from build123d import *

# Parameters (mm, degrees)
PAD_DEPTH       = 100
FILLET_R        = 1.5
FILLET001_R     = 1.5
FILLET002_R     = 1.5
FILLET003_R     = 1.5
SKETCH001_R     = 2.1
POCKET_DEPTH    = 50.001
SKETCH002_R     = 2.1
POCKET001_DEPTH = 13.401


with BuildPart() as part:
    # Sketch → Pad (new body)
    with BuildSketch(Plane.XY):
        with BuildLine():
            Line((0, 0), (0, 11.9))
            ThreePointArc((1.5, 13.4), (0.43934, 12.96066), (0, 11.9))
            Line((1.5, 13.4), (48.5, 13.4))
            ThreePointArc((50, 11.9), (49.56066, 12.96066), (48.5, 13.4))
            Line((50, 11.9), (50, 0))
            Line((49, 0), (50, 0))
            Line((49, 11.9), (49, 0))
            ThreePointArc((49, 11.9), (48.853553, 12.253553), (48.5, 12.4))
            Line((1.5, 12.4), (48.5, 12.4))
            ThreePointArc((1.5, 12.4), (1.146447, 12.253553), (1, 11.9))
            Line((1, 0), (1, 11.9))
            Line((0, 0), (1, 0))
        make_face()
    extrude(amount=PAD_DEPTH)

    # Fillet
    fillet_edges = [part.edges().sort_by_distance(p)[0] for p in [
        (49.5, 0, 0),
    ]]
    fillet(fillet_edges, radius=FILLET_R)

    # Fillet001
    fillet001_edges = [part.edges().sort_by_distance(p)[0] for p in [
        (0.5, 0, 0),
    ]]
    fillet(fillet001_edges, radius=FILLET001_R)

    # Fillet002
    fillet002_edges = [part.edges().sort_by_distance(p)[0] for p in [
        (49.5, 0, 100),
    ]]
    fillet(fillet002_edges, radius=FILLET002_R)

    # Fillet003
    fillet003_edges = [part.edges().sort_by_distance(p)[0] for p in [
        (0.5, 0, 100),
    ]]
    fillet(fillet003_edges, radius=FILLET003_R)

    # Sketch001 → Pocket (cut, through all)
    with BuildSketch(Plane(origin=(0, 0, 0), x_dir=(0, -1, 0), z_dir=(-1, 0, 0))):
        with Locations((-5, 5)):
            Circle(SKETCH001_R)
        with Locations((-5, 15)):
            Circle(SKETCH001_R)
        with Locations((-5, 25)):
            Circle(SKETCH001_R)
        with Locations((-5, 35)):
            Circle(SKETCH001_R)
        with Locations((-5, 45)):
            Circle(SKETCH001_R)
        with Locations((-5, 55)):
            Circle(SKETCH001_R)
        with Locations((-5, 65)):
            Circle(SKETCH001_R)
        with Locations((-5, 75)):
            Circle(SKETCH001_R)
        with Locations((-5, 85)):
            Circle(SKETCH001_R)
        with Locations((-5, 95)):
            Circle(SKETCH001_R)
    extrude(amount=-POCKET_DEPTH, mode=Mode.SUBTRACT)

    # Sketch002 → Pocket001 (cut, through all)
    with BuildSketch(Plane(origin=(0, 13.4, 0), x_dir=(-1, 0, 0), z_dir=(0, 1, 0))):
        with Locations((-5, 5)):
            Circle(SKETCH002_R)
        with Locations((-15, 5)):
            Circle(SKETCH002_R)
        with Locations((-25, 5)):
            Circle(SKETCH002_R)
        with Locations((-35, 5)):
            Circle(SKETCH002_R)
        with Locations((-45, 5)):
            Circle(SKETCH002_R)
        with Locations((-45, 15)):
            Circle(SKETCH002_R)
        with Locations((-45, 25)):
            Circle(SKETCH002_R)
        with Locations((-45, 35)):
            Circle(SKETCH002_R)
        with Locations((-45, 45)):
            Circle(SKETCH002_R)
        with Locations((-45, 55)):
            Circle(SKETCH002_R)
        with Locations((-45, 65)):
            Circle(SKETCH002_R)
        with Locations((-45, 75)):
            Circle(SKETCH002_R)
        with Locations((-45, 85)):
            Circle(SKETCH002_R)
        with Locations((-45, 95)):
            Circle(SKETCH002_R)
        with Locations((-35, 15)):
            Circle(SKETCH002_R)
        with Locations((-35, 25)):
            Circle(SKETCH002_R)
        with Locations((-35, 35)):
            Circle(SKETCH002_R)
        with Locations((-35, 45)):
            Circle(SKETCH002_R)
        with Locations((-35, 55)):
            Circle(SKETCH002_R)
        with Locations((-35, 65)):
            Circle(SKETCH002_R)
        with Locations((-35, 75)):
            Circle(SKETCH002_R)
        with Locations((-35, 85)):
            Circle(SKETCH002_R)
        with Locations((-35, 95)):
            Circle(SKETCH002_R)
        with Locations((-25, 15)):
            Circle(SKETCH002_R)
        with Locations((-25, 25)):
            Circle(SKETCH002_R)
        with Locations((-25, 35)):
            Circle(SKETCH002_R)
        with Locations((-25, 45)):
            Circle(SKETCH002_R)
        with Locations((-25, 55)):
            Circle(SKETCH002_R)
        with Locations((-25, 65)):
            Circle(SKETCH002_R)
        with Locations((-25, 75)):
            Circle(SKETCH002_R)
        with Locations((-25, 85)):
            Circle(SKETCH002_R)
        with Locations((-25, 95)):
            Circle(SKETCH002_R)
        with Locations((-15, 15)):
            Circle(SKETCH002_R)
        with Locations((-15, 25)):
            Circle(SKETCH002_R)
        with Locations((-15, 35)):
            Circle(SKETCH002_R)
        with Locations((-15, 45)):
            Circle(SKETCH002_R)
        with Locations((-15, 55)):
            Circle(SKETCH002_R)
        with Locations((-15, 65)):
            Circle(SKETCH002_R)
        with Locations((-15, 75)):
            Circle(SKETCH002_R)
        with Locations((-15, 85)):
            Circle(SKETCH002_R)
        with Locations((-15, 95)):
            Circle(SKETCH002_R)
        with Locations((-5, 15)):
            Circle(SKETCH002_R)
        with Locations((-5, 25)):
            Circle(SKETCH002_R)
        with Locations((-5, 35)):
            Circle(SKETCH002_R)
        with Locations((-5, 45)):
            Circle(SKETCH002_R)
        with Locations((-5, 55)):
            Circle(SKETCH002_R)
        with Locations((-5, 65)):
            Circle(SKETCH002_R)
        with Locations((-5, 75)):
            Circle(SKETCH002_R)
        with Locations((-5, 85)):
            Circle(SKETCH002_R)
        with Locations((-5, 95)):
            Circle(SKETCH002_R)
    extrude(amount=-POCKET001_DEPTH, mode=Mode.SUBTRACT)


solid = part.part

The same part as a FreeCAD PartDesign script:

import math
import FreeCAD as App
import Part
import Sketcher
from FreeCAD import Vector
Q = App.Units.Quantity


def edges_at(feature, points):
    """Names of the edges that pass closest to the given points."""
    edges = feature.Shape.Edges
    near = lambda p: min(range(len(edges)), key=lambda i: edges[i].distToShape(Part.Vertex(*p))[0])
    return sorted({f"Edge{near(p) + 1}" for p in points})

doc = App.newDocument("Part")
params = doc.addObject("Spreadsheet::Sheet", "Params")
for row, (alias, value) in enumerate([
    ("sketch1_radius", "0.500001 mm"),
    ("sketch1_radius2", "1.500001 mm"),
    ("sketch1_width", "47 mm"),
    ("sketch1_height", "11.9 mm"),
    ("pad1_length", "100 mm"),
    ("fillet_radius", "1.5 mm"),
    ("fillet2_radius", "1.5 mm"),
    ("fillet3_radius", "1.5 mm"),
    ("fillet4_radius", "1.5 mm"),
    ("sketch2_diameter", "4.2 mm"),
    ("sketch3_diameter", "4.2 mm"),
], start=1):
    params.set(f"A{row}", alias)
    params.set(f"B{row}", "=" + value)
    params.setAlias(f"B{row}", alias)

body = doc.addObject("PartDesign::Body", "Body")

# Sketch on XY plane
sketch1 = body.newObject("Sketcher::SketchObject", "Sketch")
sketch1.AttachmentSupport = (doc.getObject("XY_Plane"), [""])
sketch1.MapMode = "FlatFace"
sketch1.addGeometry(Part.LineSegment(Vector(0, 11.9, 0), Vector(0, 0, 0)), False)
sketch1.addGeometry(Part.LineSegment(Vector(0, 0, 0), Vector(1, 0, 0)), False)
sketch1.addGeometry(Part.LineSegment(Vector(1, 0, 0), Vector(1, 11.9, 0)), False)
sketch1.addGeometry(Part.ArcOfCircle(Part.Circle(Vector(1.5, 11.9, 0), Vector(0, 0, 1), 0.5), math.radians(90), math.radians(180)), False)
sketch1.addGeometry(Part.LineSegment(Vector(1.5, 12.4, 0), Vector(48.5, 12.4, 0)), False)
sketch1.addGeometry(Part.ArcOfCircle(Part.Circle(Vector(48.5, 11.9, 0), Vector(0, 0, 1), 0.5), math.radians(0), math.radians(90)), False)
sketch1.addGeometry(Part.LineSegment(Vector(49, 11.9, 0), Vector(49, 0, 0)), False)
sketch1.addGeometry(Part.LineSegment(Vector(49, 0, 0), Vector(50, 0, 0)), False)
sketch1.addGeometry(Part.LineSegment(Vector(50, 0, 0), Vector(50, 11.9, 0)), False)
sketch1.addGeometry(Part.ArcOfCircle(Part.Circle(Vector(48.5, 11.9, 0), Vector(0, 0, 1), 1.5), math.radians(0), math.radians(90)), False)
sketch1.addGeometry(Part.LineSegment(Vector(48.5, 13.4, 0), Vector(1.5, 13.4, 0)), False)
sketch1.addGeometry(Part.ArcOfCircle(Part.Circle(Vector(1.5, 11.9, 0), Vector(0, 0, 1), 1.5), math.radians(90), math.radians(180)), False)
sketch1.addConstraint(Sketcher.Constraint("Coincident", 0, 2, 1, 1))
sketch1.addConstraint(Sketcher.Constraint("Coincident", 1, 2, 2, 1))
sketch1.addConstraint(Sketcher.Constraint("Coincident", 2, 2, 3, 2))
sketch1.addConstraint(Sketcher.Constraint("Coincident", 3, 1, 4, 1))
sketch1.addConstraint(Sketcher.Constraint("Coincident", 4, 2, 5, 2))
sketch1.addConstraint(Sketcher.Constraint("Coincident", 5, 1, 6, 1))
sketch1.addConstraint(Sketcher.Constraint("Coincident", 6, 2, 7, 1))
sketch1.addConstraint(Sketcher.Constraint("Coincident", 7, 2, 8, 1))
sketch1.addConstraint(Sketcher.Constraint("Tangent", 8, 2, 9, 1))
sketch1.addConstraint(Sketcher.Constraint("Tangent", 9, 2, 10, 1))
sketch1.addConstraint(Sketcher.Constraint("Tangent", 10, 2, 11, 1))
sketch1.addConstraint(Sketcher.Constraint("Tangent", 11, 2, 0, 1))
sketch1.addConstraint(Sketcher.Constraint("Vertical", 0))
sketch1.addConstraint(Sketcher.Constraint("Horizontal", 1))
sketch1.addConstraint(Sketcher.Constraint("Vertical", 2))
sketch1.addConstraint(Sketcher.Constraint("Horizontal", 4))
sketch1.addConstraint(Sketcher.Constraint("Vertical", 6))
sketch1.addConstraint(Sketcher.Constraint("Horizontal", 7))
sketch1.addConstraint(Sketcher.Constraint("Vertical", 8))
sketch1.addConstraint(Sketcher.Constraint("Horizontal", 10))
sketch1.addConstraint(Sketcher.Constraint("Coincident", 0, 2, -1, 1))
sketch1.addConstraint(Sketcher.Constraint("Coincident", 9, 3, 5, 3))
sketch1.addConstraint(Sketcher.Constraint("Coincident", 11, 3, 3, 3))
sketch1.addConstraint(Sketcher.Constraint("Equal", 3, 5))
sketch1.addConstraint(Sketcher.Constraint("PointOnObject", 6, 2, -1))
sketch1.addConstraint(Sketcher.Constraint("Horizontal", 11, 3, 2, 2))
sketch1.addConstraint(Sketcher.Constraint("Horizontal", 2, 2, 5, 1))
sketch1.addConstraint(Sketcher.Constraint("Vertical", 11, 3, 3, 1))
sketch1.addConstraint(Sketcher.Constraint("Vertical", 9, 3, 4, 2))
sketch1.addConstraint(Sketcher.Constraint("Radius", 3, Q("0.500001 mm")))
sketch1.addConstraint(Sketcher.Constraint("Radius", 9, Q("1.500001 mm")))
sketch1.addConstraint(Sketcher.Constraint("DistanceX", 4, 1, 4, 2, Q("47 mm")))
sketch1.addConstraint(Sketcher.Constraint("DistanceY", 0, 2, 0, 1, Q("11.9 mm")))
sketch1.setExpression("Constraints[29]", "Params.sketch1_radius")
sketch1.setExpression("Constraints[30]", "Params.sketch1_radius2")
sketch1.setExpression("Constraints[31]", "Params.sketch1_width")
sketch1.setExpression("Constraints[32]", "Params.sketch1_height")
pad1 = body.newObject("PartDesign::Pad", "Pad")
pad1.Profile = sketch1
pad1.setExpression("Length", "Params.pad1_length")
doc.recompute()

fillet = body.newObject("PartDesign::Fillet", "Fillet")
fillet.Base = (pad1, edges_at(pad1, [(49.5, 0, 0)]))
fillet.setExpression("Radius", "Params.fillet_radius")
doc.recompute()

fillet2 = body.newObject("PartDesign::Fillet", "Fillet001")
fillet2.Base = (fillet, edges_at(fillet, [(0.5, 0, 0)]))
fillet2.setExpression("Radius", "Params.fillet2_radius")
doc.recompute()

fillet3 = body.newObject("PartDesign::Fillet", "Fillet002")
fillet3.Base = (fillet2, edges_at(fillet2, [(49.5, 0, 100)]))
fillet3.setExpression("Radius", "Params.fillet3_radius")
doc.recompute()

fillet4 = body.newObject("PartDesign::Fillet", "Fillet003")
fillet4.Base = (fillet3, edges_at(fillet3, [(0.5, 0, 100)]))
fillet4.setExpression("Radius", "Params.fillet4_radius")

# Sketch on YZ plane
sketch2 = body.newObject("Sketcher::SketchObject", "Sketch001")
sketch2.AttachmentSupport = (doc.getObject("YZ_Plane"), [""])
sketch2.MapMode = "FlatFace"
sketch2.addGeometry(Part.Circle(Vector(5, 5, 0), Vector(0, 0, 1), 2.1), False)
sketch2.addGeometry(Part.Circle(Vector(5, 15, 0), Vector(0, 0, 1), 2.1), False)
sketch2.addGeometry(Part.Circle(Vector(5, 25, 0), Vector(0, 0, 1), 2.1), False)
sketch2.addGeometry(Part.Circle(Vector(5, 35, 0), Vector(0, 0, 1), 2.1), False)
sketch2.addGeometry(Part.Circle(Vector(5, 45, 0), Vector(0, 0, 1), 2.1), False)
sketch2.addGeometry(Part.Circle(Vector(5, 55, 0), Vector(0, 0, 1), 2.1), False)
sketch2.addGeometry(Part.Circle(Vector(5, 65, 0), Vector(0, 0, 1), 2.1), False)
sketch2.addGeometry(Part.Circle(Vector(5, 75, 0), Vector(0, 0, 1), 2.1), False)
sketch2.addGeometry(Part.Circle(Vector(5, 85, 0), Vector(0, 0, 1), 2.1), False)
sketch2.addGeometry(Part.Circle(Vector(5, 95, 0), Vector(0, 0, 1), 2.1), False)
sketch2.addConstraint(Sketcher.Constraint("Equal", 0, 1))
sketch2.addConstraint(Sketcher.Constraint("Equal", 1, 2))
sketch2.addConstraint(Sketcher.Constraint("Equal", 2, 3))
sketch2.addConstraint(Sketcher.Constraint("Equal", 3, 4))
sketch2.addConstraint(Sketcher.Constraint("Equal", 4, 5))
sketch2.addConstraint(Sketcher.Constraint("Equal", 5, 6))
sketch2.addConstraint(Sketcher.Constraint("Equal", 6, 7))
sketch2.addConstraint(Sketcher.Constraint("Equal", 7, 8))
sketch2.addConstraint(Sketcher.Constraint("Equal", 8, 9))
sketch2.addConstraint(Sketcher.Constraint("Vertical", 0, 3, 1, 3))
sketch2.addConstraint(Sketcher.Constraint("Vertical", 1, 3, 2, 3))
sketch2.addConstraint(Sketcher.Constraint("Vertical", 2, 3, 3, 3))
sketch2.addConstraint(Sketcher.Constraint("Vertical", 3, 3, 4, 3))
sketch2.addConstraint(Sketcher.Constraint("Vertical", 4, 3, 5, 3))
sketch2.addConstraint(Sketcher.Constraint("Vertical", 5, 3, 6, 3))
sketch2.addConstraint(Sketcher.Constraint("Vertical", 6, 3, 7, 3))
sketch2.addConstraint(Sketcher.Constraint("Vertical", 7, 3, 8, 3))
sketch2.addConstraint(Sketcher.Constraint("Vertical", 8, 3, 9, 3))
sketch2.addConstraint(Sketcher.Constraint("Diameter", 0, Q("4.2 mm")))
sketch2.addConstraint(Sketcher.Constraint("DistanceX", -1, 1, 0, 3, Q("5 mm")))
sketch2.addConstraint(Sketcher.Constraint("DistanceY", -1, 1, 0, 3, Q("5 mm")))
sketch2.addConstraint(Sketcher.Constraint("DistanceY", -1, 1, 1, 3, Q("15 mm")))
sketch2.addConstraint(Sketcher.Constraint("DistanceY", -1, 1, 2, 3, Q("25 mm")))
sketch2.addConstraint(Sketcher.Constraint("DistanceY", -1, 1, 3, 3, Q("35 mm")))
sketch2.addConstraint(Sketcher.Constraint("DistanceY", -1, 1, 4, 3, Q("45 mm")))
sketch2.addConstraint(Sketcher.Constraint("DistanceY", -1, 1, 5, 3, Q("55 mm")))
sketch2.addConstraint(Sketcher.Constraint("DistanceY", -1, 1, 6, 3, Q("65 mm")))
sketch2.addConstraint(Sketcher.Constraint("DistanceY", -1, 1, 7, 3, Q("75 mm")))
sketch2.addConstraint(Sketcher.Constraint("DistanceY", -1, 1, 8, 3, Q("85 mm")))
sketch2.addConstraint(Sketcher.Constraint("DistanceY", -1, 1, 9, 3, Q("95 mm")))
sketch2.setExpression("Constraints[18]", "Params.sketch2_diameter")
pocket1 = body.newObject("PartDesign::Pocket", "Pocket")
pocket1.Profile = sketch2
pocket1.Type = "ThroughAll"
pocket1.Reversed = True

# Sketch on XZ plane
sketch3 = body.newObject("Sketcher::SketchObject", "Sketch002")
sketch3.AttachmentSupport = (doc.getObject("XZ_Plane"), [""])
sketch3.MapMode = "FlatFace"
sketch3.AttachmentOffset = App.Placement(Vector(0, 0, -13.4), App.Rotation())
sketch3.addGeometry(Part.Circle(Vector(5, 5, 0), Vector(0, 0, 1), 2.1), False)
sketch3.addGeometry(Part.Circle(Vector(15, 5, 0), Vector(0, 0, 1), 2.1), False)
sketch3.addGeometry(Part.Circle(Vector(25, 5, 0), Vector(0, 0, 1), 2.1), False)
sketch3.addGeometry(Part.Circle(Vector(35, 5, 0), Vector(0, 0, 1), 2.1), False)
sketch3.addGeometry(Part.Circle(Vector(45, 5, 0), Vector(0, 0, 1), 2.1), False)
sketch3.addGeometry(Part.Circle(Vector(45, 15, 0), Vector(0, 0, 1), 2.1), False)
sketch3.addGeometry(Part.Circle(Vector(45, 25, 0), Vector(0, 0, 1), 2.1), False)
sketch3.addGeometry(Part.Circle(Vector(45, 35, 0), Vector(0, 0, 1), 2.1), False)
sketch3.addGeometry(Part.Circle(Vector(45, 45, 0), Vector(0, 0, 1), 2.1), False)
sketch3.addGeometry(Part.Circle(Vector(45, 55, 0), Vector(0, 0, 1), 2.1), False)
sketch3.addGeometry(Part.Circle(Vector(45, 65, 0), Vector(0, 0, 1), 2.1), False)
sketch3.addGeometry(Part.Circle(Vector(45, 75, 0), Vector(0, 0, 1), 2.1), False)
sketch3.addGeometry(Part.Circle(Vector(45, 85, 0), Vector(0, 0, 1), 2.1), False)
sketch3.addGeometry(Part.Circle(Vector(45, 95, 0), Vector(0, 0, 1), 2.1), False)
sketch3.addGeometry(Part.Circle(Vector(35, 15, 0), Vector(0, 0, 1), 2.1), False)
sketch3.addGeometry(Part.Circle(Vector(35, 25, 0), Vector(0, 0, 1), 2.1), False)
sketch3.addGeometry(Part.Circle(Vector(35, 35, 0), Vector(0, 0, 1), 2.1), False)
sketch3.addGeometry(Part.Circle(Vector(35, 45, 0), Vector(0, 0, 1), 2.1), False)
sketch3.addGeometry(Part.Circle(Vector(35, 55, 0), Vector(0, 0, 1), 2.1), False)
sketch3.addGeometry(Part.Circle(Vector(35, 65, 0), Vector(0, 0, 1), 2.1), False)
sketch3.addGeometry(Part.Circle(Vector(35, 75, 0), Vector(0, 0, 1), 2.1), False)
sketch3.addGeometry(Part.Circle(Vector(35, 85, 0), Vector(0, 0, 1), 2.1), False)
sketch3.addGeometry(Part.Circle(Vector(35, 95, 0), Vector(0, 0, 1), 2.1), False)
sketch3.addGeometry(Part.Circle(Vector(25, 15, 0), Vector(0, 0, 1), 2.1), False)
sketch3.addGeometry(Part.Circle(Vector(25, 25, 0), Vector(0, 0, 1), 2.1), False)
sketch3.addGeometry(Part.Circle(Vector(25, 35, 0), Vector(0, 0, 1), 2.1), False)
sketch3.addGeometry(Part.Circle(Vector(25, 45, 0), Vector(0, 0, 1), 2.1), False)
sketch3.addGeometry(Part.Circle(Vector(25, 55, 0), Vector(0, 0, 1), 2.1), False)
sketch3.addGeometry(Part.Circle(Vector(25, 65, 0), Vector(0, 0, 1), 2.1), False)
sketch3.addGeometry(Part.Circle(Vector(25, 75, 0), Vector(0, 0, 1), 2.1), False)
sketch3.addGeometry(Part.Circle(Vector(25, 85, 0), Vector(0, 0, 1), 2.1), False)
sketch3.addGeometry(Part.Circle(Vector(25, 95, 0), Vector(0, 0, 1), 2.1), False)
sketch3.addGeometry(Part.Circle(Vector(15, 15, 0), Vector(0, 0, 1), 2.1), False)
sketch3.addGeometry(Part.Circle(Vector(15, 25, 0), Vector(0, 0, 1), 2.1), False)
sketch3.addGeometry(Part.Circle(Vector(15, 35, 0), Vector(0, 0, 1), 2.1), False)
sketch3.addGeometry(Part.Circle(Vector(15, 45, 0), Vector(0, 0, 1), 2.1), False)
sketch3.addGeometry(Part.Circle(Vector(15, 55, 0), Vector(0, 0, 1), 2.1), False)
sketch3.addGeometry(Part.Circle(Vector(15, 65, 0), Vector(0, 0, 1), 2.1), False)
sketch3.addGeometry(Part.Circle(Vector(15, 75, 0), Vector(0, 0, 1), 2.1), False)
sketch3.addGeometry(Part.Circle(Vector(15, 85, 0), Vector(0, 0, 1), 2.1), False)
sketch3.addGeometry(Part.Circle(Vector(15, 95, 0), Vector(0, 0, 1), 2.1), False)
sketch3.addGeometry(Part.Circle(Vector(5, 15, 0), Vector(0, 0, 1), 2.1), False)
sketch3.addGeometry(Part.Circle(Vector(5, 25, 0), Vector(0, 0, 1), 2.1), False)
sketch3.addGeometry(Part.Circle(Vector(5, 35, 0), Vector(0, 0, 1), 2.1), False)
sketch3.addGeometry(Part.Circle(Vector(5, 45, 0), Vector(0, 0, 1), 2.1), False)
sketch3.addGeometry(Part.Circle(Vector(5, 55, 0), Vector(0, 0, 1), 2.1), False)
sketch3.addGeometry(Part.Circle(Vector(5, 65, 0), Vector(0, 0, 1), 2.1), False)
sketch3.addGeometry(Part.Circle(Vector(5, 75, 0), Vector(0, 0, 1), 2.1), False)
sketch3.addGeometry(Part.Circle(Vector(5, 85, 0), Vector(0, 0, 1), 2.1), False)
sketch3.addGeometry(Part.Circle(Vector(5, 95, 0), Vector(0, 0, 1), 2.1), False)
sketch3.addConstraint(Sketcher.Constraint("Equal", 0, 1))
sketch3.addConstraint(Sketcher.Constraint("Equal", 1, 2))
sketch3.addConstraint(Sketcher.Constraint("Equal", 2, 3))
sketch3.addConstraint(Sketcher.Constraint("Equal", 3, 4))
sketch3.addConstraint(Sketcher.Constraint("Equal", 4, 5))
sketch3.addConstraint(Sketcher.Constraint("Equal", 5, 6))
sketch3.addConstraint(Sketcher.Constraint("Equal", 6, 7))
sketch3.addConstraint(Sketcher.Constraint("Equal", 7, 8))
sketch3.addConstraint(Sketcher.Constraint("Equal", 8, 9))
sketch3.addConstraint(Sketcher.Constraint("Equal", 9, 10))
sketch3.addConstraint(Sketcher.Constraint("Equal", 10, 11))
sketch3.addConstraint(Sketcher.Constraint("Equal", 11, 12))
sketch3.addConstraint(Sketcher.Constraint("Equal", 12, 13))
sketch3.addConstraint(Sketcher.Constraint("Equal", 13, 14))
sketch3.addConstraint(Sketcher.Constraint("Equal", 14, 15))
sketch3.addConstraint(Sketcher.Constraint("Equal", 15, 16))
sketch3.addConstraint(Sketcher.Constraint("Equal", 16, 17))
sketch3.addConstraint(Sketcher.Constraint("Equal", 17, 18))
sketch3.addConstraint(Sketcher.Constraint("Equal", 18, 19))
sketch3.addConstraint(Sketcher.Constraint("Equal", 19, 20))
sketch3.addConstraint(Sketcher.Constraint("Equal", 20, 21))
sketch3.addConstraint(Sketcher.Constraint("Equal", 21, 22))
sketch3.addConstraint(Sketcher.Constraint("Equal", 22, 23))
sketch3.addConstraint(Sketcher.Constraint("Equal", 23, 24))
sketch3.addConstraint(Sketcher.Constraint("Equal", 24, 25))
sketch3.addConstraint(Sketcher.Constraint("Equal", 25, 26))
sketch3.addConstraint(Sketcher.Constraint("Equal", 26, 27))
sketch3.addConstraint(Sketcher.Constraint("Equal", 27, 28))
sketch3.addConstraint(Sketcher.Constraint("Equal", 28, 29))
sketch3.addConstraint(Sketcher.Constraint("Equal", 29, 30))
sketch3.addConstraint(Sketcher.Constraint("Equal", 30, 31))
sketch3.addConstraint(Sketcher.Constraint("Equal", 31, 32))
sketch3.addConstraint(Sketcher.Constraint("Equal", 32, 33))
sketch3.addConstraint(Sketcher.Constraint("Equal", 33, 34))
sketch3.addConstraint(Sketcher.Constraint("Equal", 34, 35))
sketch3.addConstraint(Sketcher.Constraint("Equal", 35, 36))
sketch3.addConstraint(Sketcher.Constraint("Equal", 36, 37))
sketch3.addConstraint(Sketcher.Constraint("Equal", 37, 38))
sketch3.addConstraint(Sketcher.Constraint("Equal", 38, 39))
sketch3.addConstraint(Sketcher.Constraint("Equal", 39, 40))
sketch3.addConstraint(Sketcher.Constraint("Equal", 40, 41))
sketch3.addConstraint(Sketcher.Constraint("Equal", 41, 42))
sketch3.addConstraint(Sketcher.Constraint("Equal", 42, 43))
sketch3.addConstraint(Sketcher.Constraint("Equal", 43, 44))
sketch3.addConstraint(Sketcher.Constraint("Equal", 44, 45))
sketch3.addConstraint(Sketcher.Constraint("Equal", 45, 46))
sketch3.addConstraint(Sketcher.Constraint("Equal", 46, 47))
sketch3.addConstraint(Sketcher.Constraint("Equal", 47, 48))
sketch3.addConstraint(Sketcher.Constraint("Equal", 48, 49))
sketch3.addConstraint(Sketcher.Constraint("Horizontal", 0, 3, 1, 3))
sketch3.addConstraint(Sketcher.Constraint("Horizontal", 1, 3, 2, 3))
sketch3.addConstraint(Sketcher.Constraint("Horizontal", 2, 3, 3, 3))
sketch3.addConstraint(Sketcher.Constraint("Horizontal", 3, 3, 4, 3))
sketch3.addConstraint(Sketcher.Constraint("Horizontal", 5, 3, 14, 3))
sketch3.addConstraint(Sketcher.Constraint("Horizontal", 6, 3, 15, 3))
sketch3.addConstraint(Sketcher.Constraint("Horizontal", 7, 3, 16, 3))
sketch3.addConstraint(Sketcher.Constraint("Horizontal", 8, 3, 17, 3))
sketch3.addConstraint(Sketcher.Constraint("Horizontal", 9, 3, 18, 3))
sketch3.addConstraint(Sketcher.Constraint("Horizontal", 10, 3, 19, 3))
sketch3.addConstraint(Sketcher.Constraint("Horizontal", 11, 3, 20, 3))
sketch3.addConstraint(Sketcher.Constraint("Horizontal", 12, 3, 21, 3))
sketch3.addConstraint(Sketcher.Constraint("Horizontal", 13, 3, 22, 3))
sketch3.addConstraint(Sketcher.Constraint("Horizontal", 14, 3, 23, 3))
sketch3.addConstraint(Sketcher.Constraint("Horizontal", 15, 3, 24, 3))
sketch3.addConstraint(Sketcher.Constraint("Horizontal", 16, 3, 25, 3))
sketch3.addConstraint(Sketcher.Constraint("Horizontal", 17, 3, 26, 3))
sketch3.addConstraint(Sketcher.Constraint("Horizontal", 18, 3, 27, 3))
sketch3.addConstraint(Sketcher.Constraint("Horizontal", 19, 3, 28, 3))
sketch3.addConstraint(Sketcher.Constraint("Horizontal", 20, 3, 29, 3))
sketch3.addConstraint(Sketcher.Constraint("Horizontal", 21, 3, 30, 3))
sketch3.addConstraint(Sketcher.Constraint("Horizontal", 22, 3, 31, 3))
sketch3.addConstraint(Sketcher.Constraint("Horizontal", 23, 3, 32, 3))
sketch3.addConstraint(Sketcher.Constraint("Horizontal", 24, 3, 33, 3))
sketch3.addConstraint(Sketcher.Constraint("Horizontal", 25, 3, 34, 3))
sketch3.addConstraint(Sketcher.Constraint("Horizontal", 26, 3, 35, 3))
sketch3.addConstraint(Sketcher.Constraint("Horizontal", 27, 3, 36, 3))
sketch3.addConstraint(Sketcher.Constraint("Horizontal", 28, 3, 37, 3))
sketch3.addConstraint(Sketcher.Constraint("Horizontal", 29, 3, 38, 3))
sketch3.addConstraint(Sketcher.Constraint("Horizontal", 30, 3, 39, 3))
sketch3.addConstraint(Sketcher.Constraint("Horizontal", 31, 3, 40, 3))
sketch3.addConstraint(Sketcher.Constraint("Horizontal", 32, 3, 41, 3))
sketch3.addConstraint(Sketcher.Constraint("Horizontal", 33, 3, 42, 3))
sketch3.addConstraint(Sketcher.Constraint("Horizontal", 34, 3, 43, 3))
sketch3.addConstraint(Sketcher.Constraint("Horizontal", 35, 3, 44, 3))
sketch3.addConstraint(Sketcher.Constraint("Horizontal", 36, 3, 45, 3))
sketch3.addConstraint(Sketcher.Constraint("Horizontal", 37, 3, 46, 3))
sketch3.addConstraint(Sketcher.Constraint("Horizontal", 38, 3, 47, 3))
sketch3.addConstraint(Sketcher.Constraint("Horizontal", 39, 3, 48, 3))
sketch3.addConstraint(Sketcher.Constraint("Horizontal", 40, 3, 49, 3))
sketch3.addConstraint(Sketcher.Constraint("Vertical", 4, 3, 5, 3))
sketch3.addConstraint(Sketcher.Constraint("Vertical", 5, 3, 6, 3))
sketch3.addConstraint(Sketcher.Constraint("Vertical", 6, 3, 7, 3))
sketch3.addConstraint(Sketcher.Constraint("Vertical", 7, 3, 8, 3))
sketch3.addConstraint(Sketcher.Constraint("Vertical", 8, 3, 9, 3))
sketch3.addConstraint(Sketcher.Constraint("Vertical", 9, 3, 10, 3))
sketch3.addConstraint(Sketcher.Constraint("Vertical", 10, 3, 11, 3))
sketch3.addConstraint(Sketcher.Constraint("Vertical", 11, 3, 12, 3))
sketch3.addConstraint(Sketcher.Constraint("Vertical", 12, 3, 13, 3))
sketch3.addConstraint(Sketcher.Constraint("Vertical", 3, 3, 14, 3))
sketch3.addConstraint(Sketcher.Constraint("Vertical", 14, 3, 15, 3))
sketch3.addConstraint(Sketcher.Constraint("Vertical", 15, 3, 16, 3))
sketch3.addConstraint(Sketcher.Constraint("Vertical", 16, 3, 17, 3))
sketch3.addConstraint(Sketcher.Constraint("Vertical", 17, 3, 18, 3))
sketch3.addConstraint(Sketcher.Constraint("Vertical", 18, 3, 19, 3))
sketch3.addConstraint(Sketcher.Constraint("Vertical", 19, 3, 20, 3))
sketch3.addConstraint(Sketcher.Constraint("Vertical", 20, 3, 21, 3))
sketch3.addConstraint(Sketcher.Constraint("Vertical", 21, 3, 22, 3))
sketch3.addConstraint(Sketcher.Constraint("Vertical", 2, 3, 23, 3))
sketch3.addConstraint(Sketcher.Constraint("Vertical", 23, 3, 24, 3))
sketch3.addConstraint(Sketcher.Constraint("Vertical", 24, 3, 25, 3))
sketch3.addConstraint(Sketcher.Constraint("Vertical", 25, 3, 26, 3))
sketch3.addConstraint(Sketcher.Constraint("Vertical", 26, 3, 27, 3))
sketch3.addConstraint(Sketcher.Constraint("Vertical", 27, 3, 28, 3))
sketch3.addConstraint(Sketcher.Constraint("Vertical", 28, 3, 29, 3))
sketch3.addConstraint(Sketcher.Constraint("Vertical", 29, 3, 30, 3))
sketch3.addConstraint(Sketcher.Constraint("Vertical", 30, 3, 31, 3))
sketch3.addConstraint(Sketcher.Constraint("Vertical", 1, 3, 32, 3))
sketch3.addConstraint(Sketcher.Constraint("Vertical", 32, 3, 33, 3))
sketch3.addConstraint(Sketcher.Constraint("Vertical", 33, 3, 34, 3))
sketch3.addConstraint(Sketcher.Constraint("Vertical", 34, 3, 35, 3))
sketch3.addConstraint(Sketcher.Constraint("Vertical", 35, 3, 36, 3))
sketch3.addConstraint(Sketcher.Constraint("Vertical", 36, 3, 37, 3))
sketch3.addConstraint(Sketcher.Constraint("Vertical", 37, 3, 38, 3))
sketch3.addConstraint(Sketcher.Constraint("Vertical", 38, 3, 39, 3))
sketch3.addConstraint(Sketcher.Constraint("Vertical", 39, 3, 40, 3))
sketch3.addConstraint(Sketcher.Constraint("Vertical", 0, 3, 41, 3))
sketch3.addConstraint(Sketcher.Constraint("Vertical", 41, 3, 42, 3))
sketch3.addConstraint(Sketcher.Constraint("Vertical", 42, 3, 43, 3))
sketch3.addConstraint(Sketcher.Constraint("Vertical", 43, 3, 44, 3))
sketch3.addConstraint(Sketcher.Constraint("Vertical", 44, 3, 45, 3))
sketch3.addConstraint(Sketcher.Constraint("Vertical", 45, 3, 46, 3))
sketch3.addConstraint(Sketcher.Constraint("Vertical", 46, 3, 47, 3))
sketch3.addConstraint(Sketcher.Constraint("Vertical", 47, 3, 48, 3))
sketch3.addConstraint(Sketcher.Constraint("Vertical", 48, 3, 49, 3))
sketch3.addConstraint(Sketcher.Constraint("Diameter", 0, Q("4.2 mm")))
sketch3.addConstraint(Sketcher.Constraint("DistanceX", -1, 1, 0, 3, Q("5 mm")))
sketch3.addConstraint(Sketcher.Constraint("DistanceY", -1, 1, 0, 3, Q("5 mm")))
sketch3.addConstraint(Sketcher.Constraint("DistanceX", -1, 1, 1, 3, Q("15 mm")))
sketch3.addConstraint(Sketcher.Constraint("DistanceX", -1, 1, 2, 3, Q("25 mm")))
sketch3.addConstraint(Sketcher.Constraint("DistanceX", -1, 1, 3, 3, Q("35 mm")))
sketch3.addConstraint(Sketcher.Constraint("DistanceX", -1, 1, 4, 3, Q("45 mm")))
sketch3.addConstraint(Sketcher.Constraint("DistanceY", -1, 1, 5, 3, Q("15 mm")))
sketch3.addConstraint(Sketcher.Constraint("DistanceY", -1, 1, 6, 3, Q("25 mm")))
sketch3.addConstraint(Sketcher.Constraint("DistanceY", -1, 1, 7, 3, Q("35 mm")))
sketch3.addConstraint(Sketcher.Constraint("DistanceY", -1, 1, 8, 3, Q("45 mm")))
sketch3.addConstraint(Sketcher.Constraint("DistanceY", -1, 1, 9, 3, Q("55 mm")))
sketch3.addConstraint(Sketcher.Constraint("DistanceY", -1, 1, 10, 3, Q("65 mm")))
sketch3.addConstraint(Sketcher.Constraint("DistanceY", -1, 1, 11, 3, Q("75 mm")))
sketch3.addConstraint(Sketcher.Constraint("DistanceY", -1, 1, 12, 3, Q("85 mm")))
sketch3.addConstraint(Sketcher.Constraint("DistanceY", -1, 1, 13, 3, Q("95 mm")))
sketch3.setExpression("Constraints[134]", "Params.sketch3_diameter")
pocket2 = body.newObject("PartDesign::Pocket", "Pocket001")
pocket2.Profile = sketch3
pocket2.Type = "ThroughAll"
pocket2.Reversed = True

doc.recompute()
